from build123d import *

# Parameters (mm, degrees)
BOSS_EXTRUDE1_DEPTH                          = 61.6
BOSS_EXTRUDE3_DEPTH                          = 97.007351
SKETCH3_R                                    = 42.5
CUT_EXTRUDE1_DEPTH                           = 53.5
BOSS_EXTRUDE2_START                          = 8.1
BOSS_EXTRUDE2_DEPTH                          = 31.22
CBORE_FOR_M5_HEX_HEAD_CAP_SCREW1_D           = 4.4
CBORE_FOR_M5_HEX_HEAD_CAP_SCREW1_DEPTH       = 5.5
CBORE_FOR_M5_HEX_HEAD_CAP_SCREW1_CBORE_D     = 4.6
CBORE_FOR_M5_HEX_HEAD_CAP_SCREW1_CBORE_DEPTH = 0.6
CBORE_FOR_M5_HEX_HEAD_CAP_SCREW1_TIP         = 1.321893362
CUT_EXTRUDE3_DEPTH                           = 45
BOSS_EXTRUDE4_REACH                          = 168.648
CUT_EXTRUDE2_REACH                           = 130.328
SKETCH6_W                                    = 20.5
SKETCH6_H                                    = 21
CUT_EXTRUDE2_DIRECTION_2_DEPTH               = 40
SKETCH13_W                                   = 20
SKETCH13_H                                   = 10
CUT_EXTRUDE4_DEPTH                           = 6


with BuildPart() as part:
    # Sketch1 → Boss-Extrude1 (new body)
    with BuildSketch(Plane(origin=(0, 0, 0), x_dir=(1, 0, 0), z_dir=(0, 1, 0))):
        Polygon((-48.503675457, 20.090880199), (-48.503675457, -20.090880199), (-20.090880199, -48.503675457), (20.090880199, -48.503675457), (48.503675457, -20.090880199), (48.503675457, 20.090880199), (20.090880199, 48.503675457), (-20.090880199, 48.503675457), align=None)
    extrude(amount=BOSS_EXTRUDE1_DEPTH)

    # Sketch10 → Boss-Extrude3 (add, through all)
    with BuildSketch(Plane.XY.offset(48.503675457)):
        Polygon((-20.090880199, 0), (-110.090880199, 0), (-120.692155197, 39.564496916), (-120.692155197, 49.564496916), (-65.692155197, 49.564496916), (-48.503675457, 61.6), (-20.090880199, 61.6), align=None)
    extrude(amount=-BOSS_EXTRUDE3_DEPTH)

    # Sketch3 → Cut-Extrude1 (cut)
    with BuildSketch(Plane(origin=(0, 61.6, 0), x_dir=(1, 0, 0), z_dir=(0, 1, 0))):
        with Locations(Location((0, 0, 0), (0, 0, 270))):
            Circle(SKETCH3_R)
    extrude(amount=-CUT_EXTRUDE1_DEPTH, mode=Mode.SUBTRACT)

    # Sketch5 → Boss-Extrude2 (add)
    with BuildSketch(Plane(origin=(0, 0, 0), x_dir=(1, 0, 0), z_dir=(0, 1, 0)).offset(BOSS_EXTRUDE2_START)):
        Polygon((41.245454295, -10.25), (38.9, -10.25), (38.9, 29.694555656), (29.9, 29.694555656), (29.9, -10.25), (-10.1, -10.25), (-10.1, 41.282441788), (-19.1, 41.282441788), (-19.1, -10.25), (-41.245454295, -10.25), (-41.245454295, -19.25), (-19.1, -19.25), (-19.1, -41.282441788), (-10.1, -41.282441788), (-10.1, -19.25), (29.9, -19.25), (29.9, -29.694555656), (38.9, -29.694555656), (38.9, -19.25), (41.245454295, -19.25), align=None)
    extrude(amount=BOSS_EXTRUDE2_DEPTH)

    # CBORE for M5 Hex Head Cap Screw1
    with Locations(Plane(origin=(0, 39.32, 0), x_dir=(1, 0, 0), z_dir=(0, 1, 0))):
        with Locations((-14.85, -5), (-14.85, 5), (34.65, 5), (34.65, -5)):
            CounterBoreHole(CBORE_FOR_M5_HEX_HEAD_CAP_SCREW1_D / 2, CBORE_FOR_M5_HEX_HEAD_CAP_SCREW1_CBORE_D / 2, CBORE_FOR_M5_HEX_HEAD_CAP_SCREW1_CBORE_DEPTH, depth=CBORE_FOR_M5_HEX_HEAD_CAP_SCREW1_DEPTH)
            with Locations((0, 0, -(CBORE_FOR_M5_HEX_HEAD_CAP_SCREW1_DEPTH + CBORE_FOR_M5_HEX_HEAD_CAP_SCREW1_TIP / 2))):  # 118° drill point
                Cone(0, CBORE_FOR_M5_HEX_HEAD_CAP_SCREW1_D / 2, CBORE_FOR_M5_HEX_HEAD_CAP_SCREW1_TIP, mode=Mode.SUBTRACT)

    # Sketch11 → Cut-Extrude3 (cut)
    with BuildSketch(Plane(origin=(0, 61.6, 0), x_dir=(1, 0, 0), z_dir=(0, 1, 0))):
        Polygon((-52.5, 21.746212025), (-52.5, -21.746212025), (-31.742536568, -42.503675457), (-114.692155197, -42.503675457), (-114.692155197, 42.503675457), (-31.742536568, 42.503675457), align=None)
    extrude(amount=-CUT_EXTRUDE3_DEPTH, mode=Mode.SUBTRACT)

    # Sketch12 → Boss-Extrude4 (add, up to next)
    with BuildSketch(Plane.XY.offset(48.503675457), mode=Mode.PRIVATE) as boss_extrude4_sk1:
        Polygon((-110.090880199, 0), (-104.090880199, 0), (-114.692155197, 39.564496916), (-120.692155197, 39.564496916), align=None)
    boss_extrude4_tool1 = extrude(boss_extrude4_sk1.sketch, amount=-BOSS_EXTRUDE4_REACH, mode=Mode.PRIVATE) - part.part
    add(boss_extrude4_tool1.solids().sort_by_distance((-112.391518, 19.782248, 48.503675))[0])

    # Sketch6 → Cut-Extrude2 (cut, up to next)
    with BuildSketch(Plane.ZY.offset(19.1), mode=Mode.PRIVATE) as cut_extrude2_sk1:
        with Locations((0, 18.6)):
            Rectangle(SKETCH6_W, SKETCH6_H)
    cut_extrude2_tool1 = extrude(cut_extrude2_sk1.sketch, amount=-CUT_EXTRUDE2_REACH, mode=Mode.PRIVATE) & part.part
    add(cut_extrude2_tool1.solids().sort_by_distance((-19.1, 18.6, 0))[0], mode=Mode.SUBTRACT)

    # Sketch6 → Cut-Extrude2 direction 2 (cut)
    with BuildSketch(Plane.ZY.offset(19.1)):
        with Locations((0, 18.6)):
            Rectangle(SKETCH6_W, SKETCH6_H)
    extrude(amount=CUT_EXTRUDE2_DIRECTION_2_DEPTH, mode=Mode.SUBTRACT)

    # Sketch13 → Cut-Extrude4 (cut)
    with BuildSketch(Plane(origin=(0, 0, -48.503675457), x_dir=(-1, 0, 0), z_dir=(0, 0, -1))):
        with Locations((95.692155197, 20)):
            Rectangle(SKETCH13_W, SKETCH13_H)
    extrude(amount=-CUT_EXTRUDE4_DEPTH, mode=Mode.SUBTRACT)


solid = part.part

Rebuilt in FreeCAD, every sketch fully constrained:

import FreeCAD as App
import Part
import Sketcher
from FreeCAD import Vector
Q = App.Units.Quantity


def add_polygon(sketch, points):
    """Adds a closed chain of lines whose ends are joined by coincident constraints."""
    first, n = sketch.GeometryCount, len(points)
    for a, b in zip(points, points[1:] + points[:1]):
        sketch.addGeometry(Part.LineSegment(App.Vector(*a, 0), App.Vector(*b, 0)), False)
    for i in range(n):
        sketch.addConstraint(Sketcher.Constraint("Coincident", first + i, 2, first + (i + 1) % n, 1))

doc = App.newDocument("Part")
body = doc.addObject("PartDesign::Body", "Body")

sketch1 = doc.addObject("Sketcher::SketchObject", "Sketch")
body.addObject(sketch1)
sketch1.AttachmentSupport = (doc.XZ_Plane, [""])
sketch1.MapMode = "FlatFace"
add_polygon(sketch1, [(-48.503675, -20.09088), (-48.503675, 20.09088), (-20.09088, 48.503675), (20.09088, 48.503675), (48.503675, 20.09088), (48.503675, -20.09088), (20.09088, -48.503675), (-20.09088, -48.503675)])
sketch1.addConstraint([
    Sketcher.Constraint("Vertical", 0),
    Sketcher.Constraint("Horizontal", 2),
    Sketcher.Constraint("Vertical", 4),
    Sketcher.Constraint("Horizontal", 6),
    Sketcher.Constraint("Symmetric", 0, 2, 4, 2, -1, 1),
    Sketcher.Constraint("Symmetric", 1, 2, 5, 2, -1, 1),
    Sketcher.Constraint("Perpendicular", 1, 3),
    Sketcher.Constraint("Perpendicular", 5, 7),
    Sketcher.Constraint("Horizontal", 0, 2, 3, 2),
    Sketcher.Constraint("Horizontal", 4, 2, 7, 2),
    Sketcher.Constraint("Vertical", 2, 2, 5, 2),
    Sketcher.Constraint("Equal", 6, 0),
    Sketcher.Constraint("DistanceX", 2, 1, 2, 2, 40.18176),
    Sketcher.Constraint("Distance", 1, 40.18176),
])
pad1 = doc.addObject("PartDesign::Pad", "Pad")
body.addObject(pad1)
pad1.Profile = sketch1
pad1.Length = 61.6
pad1.Reversed = True

sketch2 = doc.addObject("Sketcher::SketchObject", "Sketch001")
body.addObject(sketch2)
sketch2.AttachmentSupport = (doc.XY_Plane, [""])
sketch2.MapMode = "FlatFace"
sketch2.AttachmentOffset = App.Placement(Vector(0, 0, 48.503675), App.Rotation())
add_polygon(sketch2, [(-110.09088, 0), (-20.09088, 0), (-20.09088, 61.6), (-48.503675, 61.6), (-65.692155, 49.564497), (-120.692155, 49.564497), (-120.692155, 39.564497)])
sketch2.addConstraint([
    Sketcher.Constraint("Horizontal", 0),
    Sketcher.Constraint("Vertical", 1),
    Sketcher.Constraint("Horizontal", 2),
    Sketcher.Constraint("Horizontal", 4),
    Sketcher.Constraint("Vertical", 5),
    Sketcher.Constraint("PointOnObject", 0, 2, -1),
    Sketcher.Constraint("DistanceX", 0, 1, 0, 2, 90.0),
    Sketcher.Constraint("DistanceX", 4, 2, 4, 1, 55.0),
    Sketcher.Constraint("DistanceY", 5, 2, 5, 1, 10.0),
    Sketcher.Constraint("Angle", 3, Q("-145 deg")),
    Sketcher.Constraint("Angle", 6, Q("-75 deg")),
    Sketcher.Constraint("DistanceY", 1, 1, 1, 2, 61.6),
    Sketcher.Constraint("Distance", 3, 20.983259),
    Sketcher.Constraint("DistanceX", 0, 2, -1, 1, 20.09088),
])
pad2 = doc.addObject("PartDesign::Pad", "Pad001")
body.addObject(pad2)
pad2.Profile = sketch2
pad2.Length = 97.007351
pad2.Reversed = True

sketch3 = doc.addObject("Sketcher::SketchObject", "Sketch002")
body.addObject(sketch3)
sketch3.AttachmentSupport = (doc.XZ_Plane, [""])
sketch3.MapMode = "FlatFace"
sketch3.AttachmentOffset = App.Placement(Vector(0, 0, -61.6), App.Rotation())
sketch3.addGeometry(Part.Circle(Vector(0, 0, 0), Vector(0, 0, 1), 42.5), False)
sketch3.addConstraint([
    Sketcher.Constraint("Coincident", 0, 3, -1, 1),
    Sketcher.Constraint("Diameter", 0, 85.0),
])
pocket1 = doc.addObject("PartDesign::Pocket", "Pocket")
body.addObject(pocket1)
pocket1.Profile = sketch3
pocket1.Length = 53.5
pocket1.Reversed = True

sketch4 = doc.addObject("Sketcher::SketchObject", "Sketch003")
body.addObject(sketch4)
sketch4.AttachmentSupport = (doc.XZ_Plane, [""])
sketch4.MapMode = "FlatFace"
sketch4.AttachmentOffset = App.Placement(Vector(0, 0, -8.1), App.Rotation())
add_polygon(sketch4, [(41.245454, 10.25), (38.9, 10.25), (38.9, -29.694556), (29.9, -29.694556), (29.9, 10.25), (-10.1, 10.25), (-10.1, -41.282442), (-19.1, -41.282442), (-19.1, 10.25), (-41.245454, 10.25), (-41.245454, 19.25), (-19.1, 19.25), (-19.1, 41.282442), (-10.1, 41.282442), (-10.1, 19.25), (29.9, 19.25), (29.9, 29.694556), (38.9, 29.694556), (38.9, 19.25), (41.245454, 19.25)])
sketch4.addConstraint([
    Sketcher.Constraint("Horizontal", 0),
    Sketcher.Constraint("Vertical", 1),
    Sketcher.Constraint("Horizontal", 2),
    Sketcher.Constraint("Vertical", 3),
    Sketcher.Constraint("Horizontal", 4),
    Sketcher.Constraint("Vertical", 5),
    Sketcher.Constraint("Horizontal", 6),
    Sketcher.Constraint("Vertical", 7),
    Sketcher.Constraint("Horizontal", 8),
    Sketcher.Constraint("Vertical", 9),
    Sketcher.Constraint("Horizontal", 10),
    Sketcher.Constraint("Vertical", 11),
    Sketcher.Constraint("Horizontal", 12),
    Sketcher.Constraint("Vertical", 13),
    Sketcher.Constraint("Horizontal", 14),
    Sketcher.Constraint("Vertical", 15),
    Sketcher.Constraint("Horizontal", 16),
    Sketcher.Constraint("Vertical", 17),
    Sketcher.Constraint("Horizontal", 18),
    Sketcher.Constraint("Vertical", 19),
    Sketcher.Constraint("Symmetric", 9, 2, 18, 2, -2),
    Sketcher.Constraint("Symmetric", 6, 2, 11, 2, -1),
    Sketcher.Constraint("Symmetric", 2, 2, 15, 2, -1),
    Sketcher.Constraint("Horizontal", 0, 2, 3, 2),
    Sketcher.Constraint("Horizontal", 4, 2, 7, 2),
    Sketcher.Constraint("Horizontal", 10, 2, 13, 2),
    Sketcher.Constraint("Vertical", 5, 2, 12, 2),
    Sketcher.Constraint("Vertical", 1, 2, 16, 2),
    Sketcher.Constraint("Equal", 2, 6),
    Sketcher.Constraint("Equal", 16, 9),
    Sketcher.Constraint("DistanceX", 2, 2, 2, 1, 9.0),
    Sketcher.Constraint("DistanceX", 4, 2, 4, 1, 40.0),
    Sketcher.Constraint("DistanceX", -1, 1, 0, 2, 38.9),
    Sketcher.Constraint("DistanceY", -1, 1, 0, 2, 10.25),
    Sketcher.Constraint("DistanceY", 5, 2, 5, 1, 51.532442),
    Sketcher.Constraint("DistanceX", 0, 2, 0, 1, 2.345454),
    Sketcher.Constraint("DistanceY", 1, 2, 1, 1, 39.944556),
])
pad3 = doc.addObject("PartDesign::Pad", "Pad002")
body.addObject(pad3)
pad3.Profile = sketch4
pad3.Length = 31.22
pad3.Reversed = True

sketch5 = doc.addObject("Sketcher::SketchObject", "Sketch004")
body.addObject(sketch5)
sketch5.AttachmentSupport = (doc.XZ_Plane, [""])
sketch5.MapMode = "FlatFace"
sketch5.AttachmentOffset = App.Placement(Vector(0, 0, -39.32), App.Rotation())
sketch5.addGeometry([
    Part.Circle(Vector(-14.85, 5, 0), Vector(0, 0, 1), 2.2),
    Part.Circle(Vector(-14.85, -5, 0), Vector(0, 0, 1), 2.2),
    Part.Circle(Vector(34.65, -5, 0), Vector(0, 0, 1), 2.2),
    Part.Circle(Vector(34.65, 5, 0), Vector(0, 0, 1), 2.2),
], False)
sketch5.addConstraint([
    Sketcher.Constraint("Equal", 0, 1),
    Sketcher.Constraint("Equal", 1, 2),
    Sketcher.Constraint("Equal", 2, 3),
    Sketcher.Constraint("Symmetric", 0, 3, 1, 3, -1),
    Sketcher.Constraint("Symmetric", 2, 3, 3, 3, -1),
    Sketcher.Constraint("Horizontal", 1, 3, 2, 3),
    Sketcher.Constraint("Diameter", 0, 4.4),
    Sketcher.Constraint("DistanceY", -1, 1, 0, 3, 5.0),
    Sketcher.Constraint("DistanceX", 1, 3, 2, 3, 49.5),
    Sketcher.Constraint("DistanceX", 0, 3, -1, 1, 14.85),
])
doc.recompute()
hole = doc.addObject("PartDesign::Hole", "Hole")
body.addObject(hole)
hole.Profile = sketch5
hole.ThreadType = "None"
hole.Diameter = 4.4
hole.DepthType = "Dimension"
hole.Depth = 5.5
hole.DrillPoint = "Angled"
hole.DrillPointAngle = 118
hole.HoleCutType = "Counterbore"
hole.HoleCutDiameter = 4.6
hole.HoleCutDepth = 0.6
hole.Reversed = True

sketch6 = doc.addObject("Sketcher::SketchObject", "Sketch005")
body.addObject(sketch6)
sketch6.AttachmentSupport = (doc.XZ_Plane, [""])
sketch6.MapMode = "FlatFace"
sketch6.AttachmentOffset = App.Placement(Vector(0, 0, -61.6), App.Rotation())
add_polygon(sketch6, [(-52.5, 21.746212), (-52.5, -21.746212), (-31.742537, -42.503675), (-114.692155, -42.503675), (-114.692155, 42.503675), (-31.742537, 42.503675)])
sketch6.addConstraint([
    Sketcher.Constraint("Vertical", 0),
    Sketcher.Constraint("Horizontal", 2),
    Sketcher.Constraint("Vertical", 3),
    Sketcher.Constraint("Horizontal", 4),
    Sketcher.Constraint("Symmetric", 1, 2, 4, 2, -1),
    Sketcher.Constraint("Perpendicular", 1, 5),
    Sketcher.Constraint("Equal", 1, 5),
    Sketcher.Constraint("DistanceX", 0, 2, -1, 1, 52.5),
    Sketcher.Constraint("DistanceX", 2, 2, 2, 1, 82.949619),
    Sketcher.Constraint("DistanceY", 3, 1, 3, 2, 85.007351),
    Sketcher.Constraint("DistanceY", 0, 2, 0, 1, 43.492424),
])
pocket2 = doc.addObject("PartDesign::Pocket", "Pocket001")
body.addObject(pocket2)
pocket2.Profile = sketch6
pocket2.Length = 45
pocket2.Reversed = True

sketch7 = doc.addObject("Sketcher::SketchObject", "Sketch006")
body.addObject(sketch7)
sketch7.AttachmentSupport = (doc.XY_Plane, [""])
sketch7.MapMode = "FlatFace"
sketch7.AttachmentOffset = App.Placement(Vector(0, 0, 48.503675), App.Rotation())
add_polygon(sketch7, [(-110.09088, 0), (-104.09088, 0), (-114.692155, 39.564497), (-120.692155, 39.564497)])
sketch7.addConstraint([
    Sketcher.Constraint("Horizontal", 0),
    Sketcher.Constraint("Horizontal", 2),
    Sketcher.Constraint("PointOnObject", 0, 2, -1),
    Sketcher.Constraint("Parallel", 1, 3),
    Sketcher.Constraint("DistanceX", 0, 1, 0, 2, 6.0),
    Sketcher.Constraint("Angle", 1, Q("105 deg")),
    Sketcher.Constraint("Distance", 1, 40.960181),
    Sketcher.Constraint("DistanceX", 0, 2, -1, 1, 104.09088),
])
pad4 = doc.addObject("PartDesign::Pad", "Pad003")
body.addObject(pad4)
pad4.Profile = sketch7
pad4.Length = 91.007351
pad4.Reversed = True

sketch8 = doc.addObject("Sketcher::SketchObject", "Sketch007")
body.addObject(sketch8)
sketch8.AttachmentSupport = (doc.YZ_Plane, [""])
sketch8.MapMode = "FlatFace"
sketch8.AttachmentOffset = App.Placement(Vector(0, 0, -19.1), App.Rotation())
add_polygon(sketch8, [(29.1, -10.25), (8.1, -10.25), (8.1, 10.25), (29.1, 10.25)])
sketch8.addConstraint([
    Sketcher.Constraint("Horizontal", 0),
    Sketcher.Constraint("Vertical", 1),
    Sketcher.Constraint("Horizontal", 2),
    Sketcher.Constraint("Vertical", 3),
    Sketcher.Constraint("DistanceX", 0, 2, 0, 1, 21.0),
    Sketcher.Constraint("DistanceY", 1, 1, 1, 2, 20.5),
    Sketcher.Constraint("DistanceX", -1, 1, 0, 2, 8.1),
    Sketcher.Constraint("DistanceY", 0, 2, -1, 1, 10.25),
])
pocket3 = doc.addObject("PartDesign::Pocket", "Pocket002")
body.addObject(pocket3)
pocket3.Profile = sketch8
pocket3.Type = "UpToFirst"
pocket3.Reversed = True

sketch9 = doc.addObject("Sketcher::SketchObject", "Sketch008")
body.addObject(sketch9)
sketch9.AttachmentSupport = (doc.YZ_Plane, [""])
sketch9.MapMode = "FlatFace"
sketch9.AttachmentOffset = App.Placement(Vector(0, 0, -19.1), App.Rotation())
add_polygon(sketch9, [(29.1, -10.25), (8.1, -10.25), (8.1, 10.25), (29.1, 10.25)])
sketch9.addConstraint([
    Sketcher.Constraint("Horizontal", 0),
    Sketcher.Constraint("Vertical", 1),
    Sketcher.Constraint("Horizontal", 2),
    Sketcher.Constraint("Vertical", 3),
    Sketcher.Constraint("DistanceX", 0, 2, 0, 1, 21.0),
    Sketcher.Constraint("DistanceY", 1, 1, 1, 2, 20.5),
    Sketcher.Constraint("DistanceX", -1, 1, 0, 2, 8.1),
    Sketcher.Constraint("DistanceY", 0, 2, -1, 1, 10.25),
])
pocket4 = doc.addObject("PartDesign::Pocket", "Pocket003")
body.addObject(pocket4)
pocket4.Profile = sketch9
pocket4.Length = 40

sketch10 = doc.addObject("Sketcher::SketchObject", "Sketch009")
body.addObject(sketch10)
sketch10.AttachmentSupport = (doc.XY_Plane, [""])
sketch10.MapMode = "FlatFace"
sketch10.AttachmentOffset = App.Placement(Vector(0, 0, -48.503675), App.Rotation())
add_polygon(sketch10, [(-85.692155, 25), (-85.692155, 15), (-105.692155, 15), (-105.692155, 25)])
sketch10.addConstraint([
    Sketcher.Constraint("Vertical", 0),
    Sketcher.Constraint("Horizontal", 1),
    Sketcher.Constraint("Vertical", 2),
    Sketcher.Constraint("Horizontal", 3),
    Sketcher.Constraint("DistanceX", 1, 2, 1, 1, 20.0),
    Sketcher.Constraint("DistanceY", 0, 2, 0, 1, 10.0),
    Sketcher.Constraint("DistanceY", -1, 1, 0, 2, 15.0),
    Sketcher.Constraint("DistanceX", 0, 2, -1, 1, 85.692155),
])
pocket5 = doc.addObject("PartDesign::Pocket", "Pocket004")
body.addObject(pocket5)
pocket5.Profile = sketch10
pocket5.Length = 6
pocket5.Reversed = True

doc.recompute()
